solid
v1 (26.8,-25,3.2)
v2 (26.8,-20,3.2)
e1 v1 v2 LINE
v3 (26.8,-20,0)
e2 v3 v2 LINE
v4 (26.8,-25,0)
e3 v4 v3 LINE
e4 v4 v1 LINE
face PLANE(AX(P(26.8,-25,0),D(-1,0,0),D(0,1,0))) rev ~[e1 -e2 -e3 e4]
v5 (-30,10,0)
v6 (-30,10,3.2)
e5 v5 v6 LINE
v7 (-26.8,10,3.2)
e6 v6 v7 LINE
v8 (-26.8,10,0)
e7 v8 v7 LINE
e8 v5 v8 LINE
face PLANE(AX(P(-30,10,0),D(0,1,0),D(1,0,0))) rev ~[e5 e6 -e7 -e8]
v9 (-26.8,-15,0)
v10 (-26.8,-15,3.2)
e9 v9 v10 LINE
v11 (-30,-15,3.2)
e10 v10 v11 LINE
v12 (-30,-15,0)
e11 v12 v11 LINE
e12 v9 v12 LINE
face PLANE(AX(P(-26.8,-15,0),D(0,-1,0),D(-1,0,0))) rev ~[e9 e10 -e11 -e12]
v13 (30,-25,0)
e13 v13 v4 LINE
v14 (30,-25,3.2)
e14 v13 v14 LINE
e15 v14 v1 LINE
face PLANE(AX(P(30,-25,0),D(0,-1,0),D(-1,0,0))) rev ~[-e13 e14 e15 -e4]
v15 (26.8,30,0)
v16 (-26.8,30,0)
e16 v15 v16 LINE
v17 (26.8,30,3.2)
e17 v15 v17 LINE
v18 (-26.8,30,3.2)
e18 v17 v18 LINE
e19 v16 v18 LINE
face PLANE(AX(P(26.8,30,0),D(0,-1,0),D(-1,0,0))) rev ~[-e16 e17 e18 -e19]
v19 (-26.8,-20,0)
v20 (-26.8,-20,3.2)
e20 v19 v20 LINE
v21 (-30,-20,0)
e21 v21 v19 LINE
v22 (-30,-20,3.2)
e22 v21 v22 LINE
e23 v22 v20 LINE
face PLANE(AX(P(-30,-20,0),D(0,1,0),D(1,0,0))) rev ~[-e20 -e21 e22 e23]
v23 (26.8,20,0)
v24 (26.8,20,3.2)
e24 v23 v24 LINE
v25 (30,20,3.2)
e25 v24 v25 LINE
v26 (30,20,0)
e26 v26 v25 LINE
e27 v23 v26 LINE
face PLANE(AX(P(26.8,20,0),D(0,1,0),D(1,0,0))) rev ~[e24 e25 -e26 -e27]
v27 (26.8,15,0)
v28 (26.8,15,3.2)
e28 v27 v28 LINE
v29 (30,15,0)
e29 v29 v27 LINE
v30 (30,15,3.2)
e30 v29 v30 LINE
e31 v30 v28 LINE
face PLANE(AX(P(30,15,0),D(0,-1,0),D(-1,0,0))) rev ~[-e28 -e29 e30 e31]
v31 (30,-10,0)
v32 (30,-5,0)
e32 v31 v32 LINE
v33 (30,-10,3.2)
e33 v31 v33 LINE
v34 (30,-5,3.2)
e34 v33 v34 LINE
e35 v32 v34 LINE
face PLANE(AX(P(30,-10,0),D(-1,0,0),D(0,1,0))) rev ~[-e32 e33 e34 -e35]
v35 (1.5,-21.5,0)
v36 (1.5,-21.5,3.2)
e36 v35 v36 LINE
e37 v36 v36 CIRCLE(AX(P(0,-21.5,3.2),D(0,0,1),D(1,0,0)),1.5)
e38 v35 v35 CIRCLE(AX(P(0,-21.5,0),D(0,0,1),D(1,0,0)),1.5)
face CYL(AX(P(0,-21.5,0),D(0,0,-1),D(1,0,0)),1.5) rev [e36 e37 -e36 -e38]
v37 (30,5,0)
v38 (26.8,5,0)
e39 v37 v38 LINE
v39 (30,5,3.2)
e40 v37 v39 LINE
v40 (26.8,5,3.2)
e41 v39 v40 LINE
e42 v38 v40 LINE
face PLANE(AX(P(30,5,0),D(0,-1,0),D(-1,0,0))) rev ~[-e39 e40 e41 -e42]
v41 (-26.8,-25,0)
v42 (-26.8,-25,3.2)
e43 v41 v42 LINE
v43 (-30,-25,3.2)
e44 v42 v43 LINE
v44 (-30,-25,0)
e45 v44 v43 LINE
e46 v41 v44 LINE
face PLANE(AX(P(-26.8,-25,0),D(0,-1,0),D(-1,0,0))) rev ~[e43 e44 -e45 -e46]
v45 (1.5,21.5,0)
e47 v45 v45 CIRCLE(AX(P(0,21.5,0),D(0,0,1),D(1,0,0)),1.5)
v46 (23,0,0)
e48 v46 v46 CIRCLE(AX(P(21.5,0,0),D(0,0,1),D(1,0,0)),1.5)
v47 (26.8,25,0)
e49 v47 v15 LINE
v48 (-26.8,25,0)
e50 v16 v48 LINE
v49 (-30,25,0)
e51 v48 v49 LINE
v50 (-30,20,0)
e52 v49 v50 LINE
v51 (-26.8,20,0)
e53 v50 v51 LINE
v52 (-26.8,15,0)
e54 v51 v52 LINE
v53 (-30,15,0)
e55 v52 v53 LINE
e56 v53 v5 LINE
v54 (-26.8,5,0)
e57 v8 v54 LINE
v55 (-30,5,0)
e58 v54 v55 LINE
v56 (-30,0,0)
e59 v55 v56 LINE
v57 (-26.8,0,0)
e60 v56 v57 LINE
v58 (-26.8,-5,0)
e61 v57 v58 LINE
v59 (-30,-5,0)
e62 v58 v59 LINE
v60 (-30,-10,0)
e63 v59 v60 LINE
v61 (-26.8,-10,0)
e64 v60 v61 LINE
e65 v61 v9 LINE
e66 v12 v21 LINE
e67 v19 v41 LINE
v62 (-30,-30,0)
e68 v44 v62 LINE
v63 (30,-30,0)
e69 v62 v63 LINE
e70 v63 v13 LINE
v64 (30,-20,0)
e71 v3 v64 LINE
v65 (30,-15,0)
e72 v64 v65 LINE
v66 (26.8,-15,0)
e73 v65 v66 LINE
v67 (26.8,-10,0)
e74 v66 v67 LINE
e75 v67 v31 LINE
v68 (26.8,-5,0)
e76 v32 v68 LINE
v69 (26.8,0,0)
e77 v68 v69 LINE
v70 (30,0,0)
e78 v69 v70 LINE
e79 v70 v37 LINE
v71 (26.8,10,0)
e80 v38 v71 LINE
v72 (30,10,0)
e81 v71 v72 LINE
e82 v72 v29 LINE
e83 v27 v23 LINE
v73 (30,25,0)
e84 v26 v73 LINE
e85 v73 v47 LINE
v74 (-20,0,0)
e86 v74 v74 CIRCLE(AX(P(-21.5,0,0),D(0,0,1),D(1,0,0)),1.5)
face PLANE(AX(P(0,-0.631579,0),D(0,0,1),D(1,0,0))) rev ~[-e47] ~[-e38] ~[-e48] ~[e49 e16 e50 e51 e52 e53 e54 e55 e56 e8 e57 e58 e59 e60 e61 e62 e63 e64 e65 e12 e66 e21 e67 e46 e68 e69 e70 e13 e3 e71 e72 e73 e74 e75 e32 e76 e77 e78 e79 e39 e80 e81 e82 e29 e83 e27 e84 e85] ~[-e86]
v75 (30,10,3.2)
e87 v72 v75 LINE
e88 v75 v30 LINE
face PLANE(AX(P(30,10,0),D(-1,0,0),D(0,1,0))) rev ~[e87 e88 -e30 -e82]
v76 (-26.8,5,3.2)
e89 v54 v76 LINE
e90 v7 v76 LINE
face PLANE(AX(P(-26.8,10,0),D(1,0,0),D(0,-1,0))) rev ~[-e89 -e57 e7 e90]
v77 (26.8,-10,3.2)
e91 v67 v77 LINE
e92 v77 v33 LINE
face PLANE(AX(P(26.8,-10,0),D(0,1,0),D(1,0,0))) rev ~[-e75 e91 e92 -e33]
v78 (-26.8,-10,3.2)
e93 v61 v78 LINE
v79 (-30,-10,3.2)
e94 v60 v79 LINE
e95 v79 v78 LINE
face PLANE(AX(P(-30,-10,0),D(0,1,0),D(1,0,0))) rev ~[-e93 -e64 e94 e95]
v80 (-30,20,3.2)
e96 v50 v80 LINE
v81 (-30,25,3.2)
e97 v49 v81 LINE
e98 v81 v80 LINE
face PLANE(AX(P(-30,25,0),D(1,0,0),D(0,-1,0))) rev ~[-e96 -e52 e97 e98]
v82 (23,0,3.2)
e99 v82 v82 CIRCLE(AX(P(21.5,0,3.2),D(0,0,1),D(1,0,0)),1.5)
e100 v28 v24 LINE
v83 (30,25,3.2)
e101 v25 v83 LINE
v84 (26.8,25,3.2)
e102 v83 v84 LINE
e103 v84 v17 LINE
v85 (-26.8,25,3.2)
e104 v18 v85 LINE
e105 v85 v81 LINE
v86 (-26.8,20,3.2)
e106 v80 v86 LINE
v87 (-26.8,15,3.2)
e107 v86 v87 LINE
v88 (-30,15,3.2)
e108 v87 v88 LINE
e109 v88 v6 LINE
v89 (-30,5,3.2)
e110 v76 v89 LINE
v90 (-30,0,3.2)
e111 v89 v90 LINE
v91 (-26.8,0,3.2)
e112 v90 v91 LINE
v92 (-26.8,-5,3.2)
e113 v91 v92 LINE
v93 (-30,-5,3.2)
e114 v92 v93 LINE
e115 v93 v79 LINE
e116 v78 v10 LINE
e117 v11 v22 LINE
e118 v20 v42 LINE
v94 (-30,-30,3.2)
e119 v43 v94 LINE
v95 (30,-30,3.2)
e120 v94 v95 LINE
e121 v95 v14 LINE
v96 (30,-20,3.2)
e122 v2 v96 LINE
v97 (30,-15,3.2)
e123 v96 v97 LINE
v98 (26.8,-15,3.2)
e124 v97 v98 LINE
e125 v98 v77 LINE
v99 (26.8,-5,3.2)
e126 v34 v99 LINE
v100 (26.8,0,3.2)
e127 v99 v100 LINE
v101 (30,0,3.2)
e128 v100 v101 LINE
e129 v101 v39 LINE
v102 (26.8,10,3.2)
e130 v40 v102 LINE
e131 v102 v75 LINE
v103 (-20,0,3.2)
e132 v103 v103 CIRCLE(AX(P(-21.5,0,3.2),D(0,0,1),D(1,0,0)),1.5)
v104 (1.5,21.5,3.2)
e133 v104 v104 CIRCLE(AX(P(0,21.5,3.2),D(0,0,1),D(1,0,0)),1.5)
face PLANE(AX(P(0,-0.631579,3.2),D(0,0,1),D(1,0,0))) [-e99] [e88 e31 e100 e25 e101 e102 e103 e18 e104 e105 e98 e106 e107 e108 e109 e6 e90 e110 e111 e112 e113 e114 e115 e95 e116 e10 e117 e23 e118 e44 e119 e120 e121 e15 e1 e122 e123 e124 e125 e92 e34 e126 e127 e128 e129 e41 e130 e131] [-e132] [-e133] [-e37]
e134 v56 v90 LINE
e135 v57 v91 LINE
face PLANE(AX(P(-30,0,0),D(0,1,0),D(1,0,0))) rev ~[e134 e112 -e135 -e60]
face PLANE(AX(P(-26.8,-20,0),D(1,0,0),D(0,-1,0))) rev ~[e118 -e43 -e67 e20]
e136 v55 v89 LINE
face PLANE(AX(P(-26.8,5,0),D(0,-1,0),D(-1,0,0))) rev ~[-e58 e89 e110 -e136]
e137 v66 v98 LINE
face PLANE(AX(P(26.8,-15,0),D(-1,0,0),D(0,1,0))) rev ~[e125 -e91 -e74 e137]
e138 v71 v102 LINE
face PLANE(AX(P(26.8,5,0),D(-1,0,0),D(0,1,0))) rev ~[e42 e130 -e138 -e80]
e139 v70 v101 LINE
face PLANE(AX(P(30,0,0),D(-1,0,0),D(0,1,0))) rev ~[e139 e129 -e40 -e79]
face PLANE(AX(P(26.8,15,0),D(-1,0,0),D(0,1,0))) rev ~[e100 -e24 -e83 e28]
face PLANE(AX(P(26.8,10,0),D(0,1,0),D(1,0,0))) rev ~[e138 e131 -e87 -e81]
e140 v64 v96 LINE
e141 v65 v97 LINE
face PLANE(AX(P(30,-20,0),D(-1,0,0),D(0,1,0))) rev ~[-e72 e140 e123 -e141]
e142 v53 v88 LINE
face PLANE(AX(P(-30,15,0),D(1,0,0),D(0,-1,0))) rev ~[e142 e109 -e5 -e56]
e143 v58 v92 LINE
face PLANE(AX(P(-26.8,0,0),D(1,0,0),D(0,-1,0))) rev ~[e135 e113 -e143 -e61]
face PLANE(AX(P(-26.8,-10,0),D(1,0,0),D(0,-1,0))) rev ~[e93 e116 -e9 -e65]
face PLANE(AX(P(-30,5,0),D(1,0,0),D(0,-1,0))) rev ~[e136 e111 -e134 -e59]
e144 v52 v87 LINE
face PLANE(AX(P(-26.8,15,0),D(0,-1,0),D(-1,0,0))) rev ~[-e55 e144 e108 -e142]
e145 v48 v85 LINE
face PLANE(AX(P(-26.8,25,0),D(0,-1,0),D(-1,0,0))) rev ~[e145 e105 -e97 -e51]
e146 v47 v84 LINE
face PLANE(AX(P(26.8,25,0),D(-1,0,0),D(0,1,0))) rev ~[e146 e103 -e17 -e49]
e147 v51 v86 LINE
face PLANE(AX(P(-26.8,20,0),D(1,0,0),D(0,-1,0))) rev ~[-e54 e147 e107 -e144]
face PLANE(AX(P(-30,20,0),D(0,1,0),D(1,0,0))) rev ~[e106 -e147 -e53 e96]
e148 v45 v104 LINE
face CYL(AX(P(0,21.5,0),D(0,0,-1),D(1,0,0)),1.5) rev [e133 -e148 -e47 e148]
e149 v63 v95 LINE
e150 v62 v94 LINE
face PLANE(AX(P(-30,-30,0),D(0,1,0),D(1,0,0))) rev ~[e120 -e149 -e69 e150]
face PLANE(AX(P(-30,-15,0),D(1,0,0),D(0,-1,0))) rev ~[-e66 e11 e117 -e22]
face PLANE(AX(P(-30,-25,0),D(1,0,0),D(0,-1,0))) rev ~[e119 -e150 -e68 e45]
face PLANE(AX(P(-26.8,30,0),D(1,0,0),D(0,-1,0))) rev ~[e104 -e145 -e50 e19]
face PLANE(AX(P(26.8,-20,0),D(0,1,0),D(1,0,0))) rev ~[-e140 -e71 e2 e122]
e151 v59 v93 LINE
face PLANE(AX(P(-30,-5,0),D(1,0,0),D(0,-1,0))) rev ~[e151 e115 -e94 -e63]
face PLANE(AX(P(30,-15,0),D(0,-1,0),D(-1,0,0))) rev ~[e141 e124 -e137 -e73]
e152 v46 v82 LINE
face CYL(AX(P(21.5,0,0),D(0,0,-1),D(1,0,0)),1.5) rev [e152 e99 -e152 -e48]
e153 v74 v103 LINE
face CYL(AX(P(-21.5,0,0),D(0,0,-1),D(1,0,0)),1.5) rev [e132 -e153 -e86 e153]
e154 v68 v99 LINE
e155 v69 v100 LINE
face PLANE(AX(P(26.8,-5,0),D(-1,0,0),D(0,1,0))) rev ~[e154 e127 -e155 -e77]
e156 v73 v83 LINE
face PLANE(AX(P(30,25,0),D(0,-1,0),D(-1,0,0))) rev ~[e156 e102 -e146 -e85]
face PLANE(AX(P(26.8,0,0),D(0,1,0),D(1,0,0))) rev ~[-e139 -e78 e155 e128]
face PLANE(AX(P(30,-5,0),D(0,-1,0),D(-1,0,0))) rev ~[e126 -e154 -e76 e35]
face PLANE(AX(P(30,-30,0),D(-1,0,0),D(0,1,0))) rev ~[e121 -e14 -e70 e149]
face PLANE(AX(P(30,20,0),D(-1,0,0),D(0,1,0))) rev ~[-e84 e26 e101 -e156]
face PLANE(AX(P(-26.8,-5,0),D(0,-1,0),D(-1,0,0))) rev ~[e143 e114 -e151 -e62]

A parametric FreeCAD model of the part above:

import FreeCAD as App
import Part
import Sketcher
from FreeCAD import Vector

doc = App.newDocument("Part")
params = doc.addObject("Spreadsheet::Sheet", "Params")
for row, (alias, value) in enumerate([
    ("sketch1_diameter", "3 mm"),
    ("sketch1_width", "60 mm"),
    ("sketch1_height", "5 mm"),
    ("sketch1_width2", "53.6 mm"),
    ("pad1_length", "3.2 mm"),
], start=1):
    params.set(f"A{row}", alias)
    params.set(f"B{row}", "=" + value)
    params.setAlias(f"B{row}", alias)

body = doc.addObject("PartDesign::Body", "Body")

sketch1 = body.newObject("Sketcher::SketchObject", "Sketch")
sketch1.AttachmentSupport = (doc.getObject("XY_Plane"), [""])
sketch1.MapMode = "FlatFace"
sketch1.addGeometry([
    Part.LineSegment(Vector(26.8, 25, 0), Vector(26.8, 30, 0)),
    Part.LineSegment(Vector(26.8, 30, 0), Vector(-26.8, 30, 0)),
    Part.LineSegment(Vector(-26.8, 30, 0), Vector(-26.8, 25, 0)),
    Part.LineSegment(Vector(-26.8, 25, 0), Vector(-30, 25, 0)),
    Part.LineSegment(Vector(-30, 25, 0), Vector(-30, 20, 0)),
    Part.LineSegment(Vector(-30, 20, 0), Vector(-26.8, 20, 0)),
    Part.LineSegment(Vector(-26.8, 20, 0), Vector(-26.8, 15, 0)),
    Part.LineSegment(Vector(-26.8, 15, 0), Vector(-30, 15, 0)),
    Part.LineSegment(Vector(-30, 15, 0), Vector(-30, 10, 0)),
    Part.LineSegment(Vector(-30, 10, 0), Vector(-26.8, 10, 0)),
    Part.LineSegment(Vector(-26.8, 10, 0), Vector(-26.8, 5, 0)),
    Part.LineSegment(Vector(-26.8, 5, 0), Vector(-30, 5, 0)),
    Part.LineSegment(Vector(-30, 5, 0), Vector(-30, 0, 0)),
    Part.LineSegment(Vector(-30, 0, 0), Vector(-26.8, 0, 0)),
    Part.LineSegment(Vector(-26.8, 0, 0), Vector(-26.8, -5, 0)),
    Part.LineSegment(Vector(-26.8, -5, 0), Vector(-30, -5, 0)),
    Part.LineSegment(Vector(-30, -5, 0), Vector(-30, -10, 0)),
    Part.LineSegment(Vector(-30, -10, 0), Vector(-26.8, -10, 0)),
    Part.LineSegment(Vector(-26.8, -10, 0), Vector(-26.8, -15, 0)),
    Part.LineSegment(Vector(-26.8, -15, 0), Vector(-30, -15, 0)),
    Part.LineSegment(Vector(-30, -15, 0), Vector(-30, -20, 0)),
    Part.LineSegment(Vector(-30, -20, 0), Vector(-26.8, -20, 0)),
    Part.LineSegment(Vector(-26.8, -20, 0), Vector(-26.8, -25, 0)),
    Part.LineSegment(Vector(-26.8, -25, 0), Vector(-30, -25, 0)),
    Part.LineSegment(Vector(-30, -25, 0), Vector(-30, -30, 0)),
    Part.LineSegment(Vector(-30, -30, 0), Vector(30, -30, 0)),
    Part.LineSegment(Vector(30, -30, 0), Vector(30, -25, 0)),
    Part.LineSegment(Vector(30, -25, 0), Vector(26.8, -25, 0)),
    Part.LineSegment(Vector(26.8, -25, 0), Vector(26.8, -20, 0)),
    Part.LineSegment(Vector(26.8, -20, 0), Vector(30, -20, 0)),
    Part.LineSegment(Vector(30, -20, 0), Vector(30, -15, 0)),
    Part.LineSegment(Vector(30, -15, 0), Vector(26.8, -15, 0)),
    Part.LineSegment(Vector(26.8, -15, 0), Vector(26.8, -10, 0)),
    Part.LineSegment(Vector(26.8, -10, 0), Vector(30, -10, 0)),
    Part.LineSegment(Vector(30, -10, 0), Vector(30, -5, 0)),
    Part.LineSegment(Vector(30, -5, 0), Vector(26.8, -5, 0)),
    Part.LineSegment(Vector(26.8, -5, 0), Vector(26.8, 0, 0)),
    Part.LineSegment(Vector(26.8, 0, 0), Vector(30, 0, 0)),
    Part.LineSegment(Vector(30, 0, 0), Vector(30, 5, 0)),
    Part.LineSegment(Vector(30, 5, 0), Vector(26.8, 5, 0)),
    Part.LineSegment(Vector(26.8, 5, 0), Vector(26.8, 10, 0)),
    Part.LineSegment(Vector(26.8, 10, 0), Vector(30, 10, 0)),
    Part.LineSegment(Vector(30, 10, 0), Vector(30, 15, 0)),
    Part.LineSegment(Vector(30, 15, 0), Vector(26.8, 15, 0)),
    Part.LineSegment(Vector(26.8, 15, 0), Vector(26.8, 20, 0)),
    Part.LineSegment(Vector(26.8, 20, 0), Vector(30, 20, 0)),
    Part.LineSegment(Vector(30, 20, 0), Vector(30, 25, 0)),
    Part.LineSegment(Vector(30, 25, 0), Vector(26.8, 25, 0)),
    Part.Circle(Vector(0, -21.5, 0), Vector(0, 0, 1), 1.5),
    Part.Circle(Vector(-21.5, 0, 0), Vector(0, 0, 1), 1.5),
    Part.Circle(Vector(21.5, 0, 0), Vector(0, 0, 1), 1.5),
    Part.Circle(Vector(0, 21.5, 0), Vector(0, 0, 1), 1.5),
], False)
sketch1.addConstraint([
    Sketcher.Constraint("Coincident", 0, 2, 1, 1),
    Sketcher.Constraint("Coincident", 1, 2, 2, 1),
    Sketcher.Constraint("Coincident", 2, 2, 3, 1),
    Sketcher.Constraint("Coincident", 3, 2, 4, 1),
    Sketcher.Constraint("Coincident", 4, 2, 5, 1),
    Sketcher.Constraint("Coincident", 5, 2, 6, 1),
    Sketcher.Constraint("Coincident", 6, 2, 7, 1),
    Sketcher.Constraint("Coincident", 7, 2, 8, 1),
    Sketcher.Constraint("Coincident", 8, 2, 9, 1),
    Sketcher.Constraint("Coincident", 9, 2, 10, 1),
    Sketcher.Constraint("Coincident", 10, 2, 11, 1),
    Sketcher.Constraint("Coincident", 11, 2, 12, 1),
    Sketcher.Constraint("Coincident", 12, 2, 13, 1),
    Sketcher.Constraint("Coincident", 13, 2, 14, 1),
    Sketcher.Constraint("Coincident", 14, 2, 15, 1),
    Sketcher.Constraint("Coincident", 15, 2, 16, 1),
    Sketcher.Constraint("Coincident", 16, 2, 17, 1),
    Sketcher.Constraint("Coincident", 17, 2, 18, 1),
    Sketcher.Constraint("Coincident", 18, 2, 19, 1),
    Sketcher.Constraint("Coincident", 19, 2, 20, 1),
    Sketcher.Constraint("Coincident", 20, 2, 21, 1),
    Sketcher.Constraint("Coincident", 21, 2, 22, 1),
    Sketcher.Constraint("Coincident", 22, 2, 23, 1),
    Sketcher.Constraint("Coincident", 23, 2, 24, 1),
    Sketcher.Constraint("Coincident", 24, 2, 25, 1),
    Sketcher.Constraint("Coincident", 25, 2, 26, 1),
    Sketcher.Constraint("Coincident", 26, 2, 27, 1),
    Sketcher.Constraint("Coincident", 27, 2, 28, 1),
    Sketcher.Constraint("Coincident", 28, 2, 29, 1),
    Sketcher.Constraint("Coincident", 29, 2, 30, 1),
    Sketcher.Constraint("Coincident", 30, 2, 31, 1),
    Sketcher.Constraint("Coincident", 31, 2, 32, 1),
    Sketcher.Constraint("Coincident", 32, 2, 33, 1),
    Sketcher.Constraint("Coincident", 33, 2, 34, 1),
    Sketcher.Constraint("Coincident", 34, 2, 35, 1),
    Sketcher.Constraint("Coincident", 35, 2, 36, 1),
    Sketcher.Constraint("Coincident", 36, 2, 37, 1),
    Sketcher.Constraint("Coincident", 37, 2, 38, 1),
    Sketcher.Constraint("Coincident", 38, 2, 39, 1),
    Sketcher.Constraint("Coincident", 39, 2, 40, 1),
    Sketcher.Constraint("Coincident", 40, 2, 41, 1),
    Sketcher.Constraint("Coincident", 41, 2, 42, 1),
    Sketcher.Constraint("Coincident", 42, 2, 43, 1),
    Sketcher.Constraint("Coincident", 43, 2, 44, 1),
    Sketcher.Constraint("Coincident", 44, 2, 45, 1),
    Sketcher.Constraint("Coincident", 45, 2, 46, 1),
    Sketcher.Constraint("Coincident", 46, 2, 47, 1),
    Sketcher.Constraint("Coincident", 47, 2, 0, 1),
    Sketcher.Constraint("Vertical", 0),
    Sketcher.Constraint("Horizontal", 1),
    Sketcher.Constraint("Vertical", 2),
    Sketcher.Constraint("Horizontal", 3),
    Sketcher.Constraint("Vertical", 4),
    Sketcher.Constraint("Horizontal", 5),
    Sketcher.Constraint("Vertical", 6),
    Sketcher.Constraint("Horizontal", 7),
    Sketcher.Constraint("Vertical", 8),
    Sketcher.Constraint("Horizontal", 9),
    Sketcher.Constraint("Vertical", 10),
    Sketcher.Constraint("Horizontal", 11),
    Sketcher.Constraint("Vertical", 12),
    Sketcher.Constraint("Horizontal", 13),
    Sketcher.Constraint("Vertical", 14),
    Sketcher.Constraint("Horizontal", 15),
    Sketcher.Constraint("Vertical", 16),
    Sketcher.Constraint("Horizontal", 17),
    Sketcher.Constraint("Vertical", 18),
    Sketcher.Constraint("Horizontal", 19),
    Sketcher.Constraint("Vertical", 20),
    Sketcher.Constraint("Horizontal", 21),
    Sketcher.Constraint("Vertical", 22),
    Sketcher.Constraint("Horizontal", 23),
    Sketcher.Constraint("Vertical", 24),
    Sketcher.Constraint("Horizontal", 25),
    Sketcher.Constraint("Vertical", 26),
    Sketcher.Constraint("Horizontal", 27),
    Sketcher.Constraint("Vertical", 28),
    Sketcher.Constraint("Horizontal", 29),
    Sketcher.Constraint("Vertical", 30),
    Sketcher.Constraint("Horizontal", 31),
    Sketcher.Constraint("Vertical", 32),
    Sketcher.Constraint("Horizontal", 33),
    Sketcher.Constraint("Vertical", 34),
    Sketcher.Constraint("Horizontal", 35),
    Sketcher.Constraint("Vertical", 36),
    Sketcher.Constraint("Horizontal", 37),
    Sketcher.Constraint("Vertical", 38),
    Sketcher.Constraint("Horizontal", 39),
    Sketcher.Constraint("Vertical", 40),
    Sketcher.Constraint("Horizontal", 41),
    Sketcher.Constraint("Vertical", 42),
    Sketcher.Constraint("Horizontal", 43),
    Sketcher.Constraint("Vertical", 44),
    Sketcher.Constraint("Horizontal", 45),
    Sketcher.Constraint("Vertical", 46),
    Sketcher.Constraint("Horizontal", 47),
    Sketcher.Constraint("Equal", 48, 49),
    Sketcher.Constraint("Equal", 49, 50),
    Sketcher.Constraint("Equal", 50, 51),
    Sketcher.Constraint("Symmetric", 49, 3, 50, 3, -1, 1),
    Sketcher.Constraint("Symmetric", 48, 3, 51, 3, -1, 1),
    Sketcher.Constraint("Symmetric", 3, 2, 26, 2, -1, 1),
    Sketcher.Constraint("Symmetric", 5, 2, 28, 2, -1, 1),
    Sketcher.Constraint("Symmetric", 7, 2, 30, 2, -1, 1),
    Sketcher.Constraint("Symmetric", 9, 2, 32, 2, -1, 1),
    Sketcher.Constraint("Symmetric", 11, 2, 34, 2, -1, 1),
    Sketcher.Constraint("Symmetric", 13, 2, 36, 2, -1, 1),
    Sketcher.Constraint("Symmetric", 15, 2, 38, 2, -1, 1),
    Sketcher.Constraint("Symmetric", 17, 2, 40, 2, -1, 1),
    Sketcher.Constraint("Symmetric", 19, 2, 42, 2, -1, 1),
    Sketcher.Constraint("Symmetric", 21, 2, 44, 2, -1, 1),
    Sketcher.Constraint("Symmetric", 23, 2, 46, 2, -1, 1),
    Sketcher.Constraint("Symmetric", 23, 2, 26, 2, -2),
    Sketcher.Constraint("Symmetric", 21, 2, 28, 2, -2),
    Sketcher.Constraint("Symmetric", 19, 2, 30, 2, -2),
    Sketcher.Constraint("Symmetric", 17, 2, 32, 2, -2),
    Sketcher.Constraint("Symmetric", 15, 2, 34, 2, -2),
    Sketcher.Constraint("PointOnObject", 48, 3, -2),
    Sketcher.Constraint("PointOnObject", 49, 3, -1),
    Sketcher.Constraint("PointOnObject", 12, 2, -1),
    Sketcher.Constraint("Vertical", 2, 2, 5, 2),
    Sketcher.Constraint("Vertical", 4, 2, 7, 2),
    Sketcher.Constraint("Vertical", 6, 2, 9, 2),
    Sketcher.Constraint("Vertical", 8, 2, 11, 2),
    Sketcher.Constraint("Vertical", 10, 2, 13, 2),
    Sketcher.Constraint("Vertical", 0, 2, 27, 2),
    Sketcher.Constraint("Equal", 2, 4),
    Sketcher.Constraint("Equal", 4, 6),
    Sketcher.Constraint("Equal", 6, 8),
    Sketcher.Constraint("Equal", 8, 10),
    Sketcher.Constraint("Equal", 10, 12),
    Sketcher.Constraint("Equal", 22, 24),
    Sketcher.Constraint("Diameter", 48, 3.0),
    Sketcher.Constraint("DistanceX", 25, 1, 25, 2, 60.0),
    Sketcher.Constraint("DistanceY", 0, 1, 0, 2, 5.0),
    Sketcher.Constraint("DistanceX", 1, 2, 1, 1, 53.6),
    Sketcher.Constraint("DistanceX", 49, 3, 50, 3, 43.0),
    Sketcher.Constraint("DistanceY", 48, 3, 51, 3, 43.0),
])
sketch1.setExpression("Constraints[132]", "Params.sketch1_diameter")
sketch1.setExpression("Constraints[133]", "Params.sketch1_width")
sketch1.setExpression("Constraints[134]", "Params.sketch1_height")
sketch1.setExpression("Constraints[135]", "Params.sketch1_width2")
pad1 = body.newObject("PartDesign::Pad", "Pad")
pad1.Profile = sketch1
pad1.setExpression("Length", "Params.pad1_length")

doc.recompute()
